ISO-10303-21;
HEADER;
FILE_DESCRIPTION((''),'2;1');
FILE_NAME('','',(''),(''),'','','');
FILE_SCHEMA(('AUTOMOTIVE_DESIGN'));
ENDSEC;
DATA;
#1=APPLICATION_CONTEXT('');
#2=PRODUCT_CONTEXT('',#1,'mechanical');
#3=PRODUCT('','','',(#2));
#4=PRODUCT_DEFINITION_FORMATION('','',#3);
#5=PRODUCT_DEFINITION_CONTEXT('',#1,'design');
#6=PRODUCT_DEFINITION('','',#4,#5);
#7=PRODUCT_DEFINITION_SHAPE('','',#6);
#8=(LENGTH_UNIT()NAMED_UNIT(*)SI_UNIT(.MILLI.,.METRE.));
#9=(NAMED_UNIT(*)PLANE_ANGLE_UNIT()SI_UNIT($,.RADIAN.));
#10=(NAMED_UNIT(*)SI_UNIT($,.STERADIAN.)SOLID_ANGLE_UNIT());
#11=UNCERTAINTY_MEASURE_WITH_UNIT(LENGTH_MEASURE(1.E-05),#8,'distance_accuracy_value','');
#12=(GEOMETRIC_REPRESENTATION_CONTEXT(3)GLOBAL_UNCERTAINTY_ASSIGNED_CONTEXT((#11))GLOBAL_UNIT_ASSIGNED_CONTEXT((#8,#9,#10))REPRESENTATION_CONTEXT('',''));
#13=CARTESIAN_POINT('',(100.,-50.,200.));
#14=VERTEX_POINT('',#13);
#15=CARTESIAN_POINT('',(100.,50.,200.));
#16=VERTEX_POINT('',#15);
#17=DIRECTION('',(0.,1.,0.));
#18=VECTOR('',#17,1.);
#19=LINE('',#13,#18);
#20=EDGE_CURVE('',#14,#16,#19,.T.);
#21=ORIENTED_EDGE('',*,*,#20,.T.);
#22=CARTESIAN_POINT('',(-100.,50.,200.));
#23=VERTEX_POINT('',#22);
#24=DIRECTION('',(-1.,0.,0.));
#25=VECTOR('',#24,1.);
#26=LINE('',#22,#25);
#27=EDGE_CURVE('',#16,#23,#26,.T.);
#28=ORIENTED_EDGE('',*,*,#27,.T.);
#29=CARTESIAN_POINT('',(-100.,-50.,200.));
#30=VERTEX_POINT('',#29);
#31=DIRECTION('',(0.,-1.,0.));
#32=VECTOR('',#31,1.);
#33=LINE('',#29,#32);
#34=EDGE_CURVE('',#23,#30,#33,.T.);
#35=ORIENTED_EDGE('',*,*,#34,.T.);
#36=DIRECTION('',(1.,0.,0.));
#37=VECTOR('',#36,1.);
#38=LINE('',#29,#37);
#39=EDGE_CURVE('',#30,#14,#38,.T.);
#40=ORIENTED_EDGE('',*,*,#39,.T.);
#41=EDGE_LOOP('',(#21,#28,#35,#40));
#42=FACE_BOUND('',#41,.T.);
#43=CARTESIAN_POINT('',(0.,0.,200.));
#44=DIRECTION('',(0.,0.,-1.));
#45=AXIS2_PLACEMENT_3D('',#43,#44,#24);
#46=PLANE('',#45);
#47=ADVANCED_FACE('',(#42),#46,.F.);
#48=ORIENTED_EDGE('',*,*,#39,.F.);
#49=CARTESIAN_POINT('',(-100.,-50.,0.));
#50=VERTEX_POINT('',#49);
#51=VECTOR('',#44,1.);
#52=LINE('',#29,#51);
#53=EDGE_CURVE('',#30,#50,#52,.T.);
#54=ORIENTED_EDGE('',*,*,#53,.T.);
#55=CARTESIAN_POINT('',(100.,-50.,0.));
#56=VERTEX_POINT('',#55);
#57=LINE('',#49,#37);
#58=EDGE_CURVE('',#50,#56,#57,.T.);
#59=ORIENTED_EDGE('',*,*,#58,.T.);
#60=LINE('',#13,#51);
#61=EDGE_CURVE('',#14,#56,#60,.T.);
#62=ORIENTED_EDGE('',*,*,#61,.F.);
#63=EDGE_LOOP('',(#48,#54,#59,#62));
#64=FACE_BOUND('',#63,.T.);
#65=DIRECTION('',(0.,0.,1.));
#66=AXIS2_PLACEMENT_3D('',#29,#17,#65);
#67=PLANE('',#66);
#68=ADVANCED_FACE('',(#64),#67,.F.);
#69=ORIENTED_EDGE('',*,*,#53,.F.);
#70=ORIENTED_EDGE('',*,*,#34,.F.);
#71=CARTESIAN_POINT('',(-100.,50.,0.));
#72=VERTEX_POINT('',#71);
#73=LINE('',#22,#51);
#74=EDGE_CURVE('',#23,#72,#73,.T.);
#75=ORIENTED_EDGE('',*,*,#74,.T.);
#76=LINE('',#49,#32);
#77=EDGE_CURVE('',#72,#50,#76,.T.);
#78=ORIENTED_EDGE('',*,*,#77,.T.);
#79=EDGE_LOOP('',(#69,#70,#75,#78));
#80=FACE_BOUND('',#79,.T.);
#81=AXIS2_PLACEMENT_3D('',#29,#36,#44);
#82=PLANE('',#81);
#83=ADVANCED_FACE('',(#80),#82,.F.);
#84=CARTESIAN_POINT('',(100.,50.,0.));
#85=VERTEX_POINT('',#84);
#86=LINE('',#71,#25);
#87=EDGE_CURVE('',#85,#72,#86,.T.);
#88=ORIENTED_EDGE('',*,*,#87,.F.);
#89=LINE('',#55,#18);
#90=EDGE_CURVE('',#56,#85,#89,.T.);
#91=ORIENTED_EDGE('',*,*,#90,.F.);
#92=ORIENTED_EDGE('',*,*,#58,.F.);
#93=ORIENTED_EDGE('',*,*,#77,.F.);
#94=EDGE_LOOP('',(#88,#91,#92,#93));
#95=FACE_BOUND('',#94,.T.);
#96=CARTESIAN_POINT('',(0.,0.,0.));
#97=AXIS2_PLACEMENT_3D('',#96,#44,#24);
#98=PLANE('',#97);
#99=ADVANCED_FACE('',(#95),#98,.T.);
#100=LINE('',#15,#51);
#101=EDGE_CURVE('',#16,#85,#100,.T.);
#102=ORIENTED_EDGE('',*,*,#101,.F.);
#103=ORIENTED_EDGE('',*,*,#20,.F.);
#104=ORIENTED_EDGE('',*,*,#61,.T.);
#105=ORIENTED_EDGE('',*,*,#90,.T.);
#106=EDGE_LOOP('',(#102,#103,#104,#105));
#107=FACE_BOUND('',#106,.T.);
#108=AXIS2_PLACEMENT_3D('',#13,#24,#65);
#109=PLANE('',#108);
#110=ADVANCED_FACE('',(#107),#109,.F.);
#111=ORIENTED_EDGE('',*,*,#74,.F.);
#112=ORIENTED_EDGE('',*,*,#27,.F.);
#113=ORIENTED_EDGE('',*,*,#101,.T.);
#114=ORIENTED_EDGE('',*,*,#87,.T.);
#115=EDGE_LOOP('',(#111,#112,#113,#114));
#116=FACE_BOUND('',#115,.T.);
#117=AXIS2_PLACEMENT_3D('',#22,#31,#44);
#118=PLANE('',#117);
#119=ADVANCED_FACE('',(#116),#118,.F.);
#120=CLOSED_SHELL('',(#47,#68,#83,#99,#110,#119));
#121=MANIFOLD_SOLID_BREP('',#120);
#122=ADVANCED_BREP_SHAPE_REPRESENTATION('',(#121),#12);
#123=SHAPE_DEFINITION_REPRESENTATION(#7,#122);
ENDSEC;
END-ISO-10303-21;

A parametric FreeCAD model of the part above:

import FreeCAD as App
import Part
import Sketcher
from FreeCAD import Vector
Q = App.Units.Quantity

doc = App.newDocument("Part")
body = doc.addObject("PartDesign::Body", "Body")

sketch1 = doc.addObject("Sketcher::SketchObject", "Sketch")
body.addObject(sketch1)
sketch1.AttachmentSupport = (doc.XY_Plane, [""])
sketch1.MapMode = "FlatFace"
sketch1.addGeometry([
    Part.LineSegment(Vector(-100, 50, 0), Vector(-100, -50, 0)),
    Part.LineSegment(Vector(-100, -50, 0), Vector(100, -50, 0)),
    Part.LineSegment(Vector(100, -50, 0), Vector(100, 50, 0)),
    Part.LineSegment(Vector(100, 50, 0), Vector(-100, 50, 0)),
], False)
sketch1.addConstraint([
    Sketcher.Constraint("Coincident", 0, 2, 1, 1),
    Sketcher.Constraint("Coincident", 1, 2, 2, 1),
    Sketcher.Constraint("Coincident", 2, 2, 3, 1),
    Sketcher.Constraint("Coincident", 3, 2, 0, 1),
    Sketcher.Constraint("Vertical", 0),
    Sketcher.Constraint("Horizontal", 1),
    Sketcher.Constraint("Vertical", 2),
    Sketcher.Constraint("Horizontal", 3),
    Sketcher.Constraint("Symmetric", 0, 2, 2, 2, -1, 1),
    Sketcher.Constraint("DistanceX", 1, 1, 1, 2, Q("200 mm")),
    Sketcher.Constraint("DistanceY", 0, 2, 0, 1, Q("100 mm")),
])
pad1 = doc.addObject("PartDesign::Pad", "Pad")
body.addObject(pad1)
pad1.Profile = sketch1
pad1.Length = 200

doc.recompute()
